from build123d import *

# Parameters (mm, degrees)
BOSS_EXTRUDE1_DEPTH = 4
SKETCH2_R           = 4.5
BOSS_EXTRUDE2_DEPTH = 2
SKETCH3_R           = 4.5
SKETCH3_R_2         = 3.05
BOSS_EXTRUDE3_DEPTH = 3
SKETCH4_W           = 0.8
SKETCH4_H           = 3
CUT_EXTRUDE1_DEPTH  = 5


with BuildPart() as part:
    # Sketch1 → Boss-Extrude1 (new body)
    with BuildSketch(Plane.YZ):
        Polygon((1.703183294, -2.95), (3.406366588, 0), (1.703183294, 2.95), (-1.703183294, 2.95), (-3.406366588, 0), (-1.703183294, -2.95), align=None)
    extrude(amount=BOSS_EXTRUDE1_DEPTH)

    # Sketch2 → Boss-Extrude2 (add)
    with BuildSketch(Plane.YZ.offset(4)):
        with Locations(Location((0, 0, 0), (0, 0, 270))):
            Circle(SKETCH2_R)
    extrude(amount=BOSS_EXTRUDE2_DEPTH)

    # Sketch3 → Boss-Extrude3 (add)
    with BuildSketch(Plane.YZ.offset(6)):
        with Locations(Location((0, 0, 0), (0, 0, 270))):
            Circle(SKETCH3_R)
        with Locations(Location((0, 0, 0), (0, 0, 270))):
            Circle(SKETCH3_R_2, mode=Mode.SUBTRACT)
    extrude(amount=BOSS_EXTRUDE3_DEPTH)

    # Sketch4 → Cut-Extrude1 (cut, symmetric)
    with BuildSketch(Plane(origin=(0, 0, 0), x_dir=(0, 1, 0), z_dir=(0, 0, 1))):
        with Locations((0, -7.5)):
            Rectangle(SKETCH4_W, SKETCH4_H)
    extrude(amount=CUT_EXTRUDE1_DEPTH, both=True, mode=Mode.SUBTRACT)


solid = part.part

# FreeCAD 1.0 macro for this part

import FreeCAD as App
import Part
import Sketcher
from FreeCAD import Vector
Q = App.Units.Quantity

doc = App.newDocument("Part")
body = doc.addObject("PartDesign::Body", "Body")

sketch1 = body.newObject("Sketcher::SketchObject", "Sketch")
sketch1.AttachmentSupport = (doc.getObject("YZ_Plane"), [""])
sketch1.MapMode = "FlatFace"
sketch1.addGeometry([
    Part.LineSegment(Vector(1.703183, -2.95, 0), Vector(3.406367, 0, 0)),
    Part.LineSegment(Vector(3.406367, 0, 0), Vector(1.703183, 2.95, 0)),
    Part.LineSegment(Vector(1.703183, 2.95, 0), Vector(-1.703183, 2.95, 0)),
    Part.LineSegment(Vector(-1.703183, 2.95, 0), Vector(-3.406367, 0, 0)),
    Part.LineSegment(Vector(-3.406367, 0, 0), Vector(-1.703183, -2.95, 0)),
    Part.LineSegment(Vector(-1.703183, -2.95, 0), Vector(1.703183, -2.95, 0)),
], False)
sketch1.addConstraint([
    Sketcher.Constraint("Coincident", 0, 2, 1, 1),
    Sketcher.Constraint("Coincident", 1, 2, 2, 1),
    Sketcher.Constraint("Coincident", 2, 2, 3, 1),
    Sketcher.Constraint("Coincident", 3, 2, 4, 1),
    Sketcher.Constraint("Coincident", 4, 2, 5, 1),
    Sketcher.Constraint("Coincident", 5, 2, 0, 1),
    Sketcher.Constraint("Horizontal", 2),
    Sketcher.Constraint("Horizontal", 5),
    Sketcher.Constraint("Symmetric", 0, 2, 3, 2, -1, 1),
    Sketcher.Constraint("Symmetric", 1, 2, 4, 2, -1, 1),
    Sketcher.Constraint("PointOnObject", 0, 2, -1),
    Sketcher.Constraint("Parallel", 0, 3),
    Sketcher.Constraint("Vertical", 2, 2, 4, 2),
    Sketcher.Constraint("Angle", 0, Q("60 deg")),
    Sketcher.Constraint("DistanceY", 4, 2, 2, 2, Q("5.9 mm")),
    Sketcher.Constraint("DistanceX", 2, 2, 2, 1, Q("3.406367 mm")),
])
pad1 = body.newObject("PartDesign::Pad", "Pad")
pad1.Profile = sketch1
pad1.Length = 4

sketch2 = body.newObject("Sketcher::SketchObject", "Sketch001")
sketch2.AttachmentSupport = (doc.getObject("YZ_Plane"), [""])
sketch2.MapMode = "FlatFace"
sketch2.AttachmentOffset = App.Placement(Vector(0, 0, 4), App.Rotation())
sketch2.addGeometry(Part.Circle(Vector(0, 0, 0), Vector(0, 0, 1), 4.5), False)
sketch2.addConstraint([
    Sketcher.Constraint("Coincident", 0, 3, -1, 1),
    Sketcher.Constraint("Diameter", 0, Q("9 mm")),
])
pad2 = body.newObject("PartDesign::Pad", "Pad001")
pad2.Profile = sketch2
pad2.Length = 2

sketch3 = body.newObject("Sketcher::SketchObject", "Sketch002")
sketch3.AttachmentSupport = (doc.getObject("YZ_Plane"), [""])
sketch3.MapMode = "FlatFace"
sketch3.AttachmentOffset = App.Placement(Vector(0, 0, 6), App.Rotation())
sketch3.addGeometry([
    Part.Circle(Vector(0, 0, 0), Vector(0, 0, 1), 4.5),
    Part.Circle(Vector(0, 0, 0), Vector(0, 0, 1), 3.05),
], False)
sketch3.addConstraint([
    Sketcher.Constraint("Coincident", 0, 3, -1, 1),
    Sketcher.Constraint("Coincident", 1, 3, -1, 1),
    Sketcher.Constraint("Diameter", 0, Q("9 mm")),
    Sketcher.Constraint("Diameter", 1, Q("6.1 mm")),
])
pad3 = body.newObject("PartDesign::Pad", "Pad002")
pad3.Profile = sketch3
pad3.Length = 3

sketch4 = body.newObject("Sketcher::SketchObject", "Sketch003")
sketch4.AttachmentSupport = (doc.getObject("XY_Plane"), [""])
sketch4.MapMode = "FlatFace"
sketch4.addGeometry([
    Part.LineSegment(Vector(6, -0.4, 0), Vector(9, -0.4, 0)),
    Part.LineSegment(Vector(9, -0.4, 0), Vector(9, 0.4, 0)),
    Part.LineSegment(Vector(9, 0.4, 0), Vector(6, 0.4, 0)),
    Part.LineSegment(Vector(6, 0.4, 0), Vector(6, -0.4, 0)),
], False)
sketch4.addConstraint([
    Sketcher.Constraint("Coincident", 0, 2, 1, 1),
    Sketcher.Constraint("Coincident", 1, 2, 2, 1),
    Sketcher.Constraint("Coincident", 2, 2, 3, 1),
    Sketcher.Constraint("Coincident", 3, 2, 0, 1),
    Sketcher.Constraint("Horizontal", 0),
    Sketcher.Constraint("Vertical", 1),
    Sketcher.Constraint("Horizontal", 2),
    Sketcher.Constraint("Vertical", 3),
    Sketcher.Constraint("DistanceX", 0, 1, 0, 2, Q("3 mm")),
    Sketcher.Constraint("DistanceY", 1, 1, 1, 2, Q("0.8 mm")),
    Sketcher.Constraint("DistanceX", -1, 1, 0, 2, Q("9 mm")),
    Sketcher.Constraint("DistanceY", 0, 2, -1, 1, Q("0.4 mm")),
])
pocket1 = body.newObject("PartDesign::Pocket", "Pocket")
pocket1.Profile = sketch4
pocket1.Length = 10
pocket1.Midplane = True

doc.recompute()
